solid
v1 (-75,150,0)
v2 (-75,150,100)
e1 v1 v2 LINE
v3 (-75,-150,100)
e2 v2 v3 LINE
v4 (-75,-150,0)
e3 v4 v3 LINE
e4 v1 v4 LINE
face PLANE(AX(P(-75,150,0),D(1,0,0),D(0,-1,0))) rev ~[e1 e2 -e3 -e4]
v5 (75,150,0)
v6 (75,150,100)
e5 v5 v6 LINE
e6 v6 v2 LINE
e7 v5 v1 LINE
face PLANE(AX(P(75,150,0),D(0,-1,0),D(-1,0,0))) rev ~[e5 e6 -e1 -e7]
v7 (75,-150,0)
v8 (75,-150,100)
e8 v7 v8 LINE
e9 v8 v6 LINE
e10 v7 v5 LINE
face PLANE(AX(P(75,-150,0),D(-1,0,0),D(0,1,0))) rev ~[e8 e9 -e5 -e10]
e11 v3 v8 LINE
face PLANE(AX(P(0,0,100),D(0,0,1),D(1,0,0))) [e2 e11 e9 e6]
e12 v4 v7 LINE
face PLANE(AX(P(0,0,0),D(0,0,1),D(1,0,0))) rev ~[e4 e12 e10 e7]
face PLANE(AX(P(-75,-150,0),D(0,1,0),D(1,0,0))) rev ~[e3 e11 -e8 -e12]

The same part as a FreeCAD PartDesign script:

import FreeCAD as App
import Part
import Sketcher

V = App.Vector
Q = App.Units.Quantity


def add_polygon(sketch, points):
    """Adds a closed chain of lines whose ends are joined by coincident constraints."""
    first, n = sketch.GeometryCount, len(points)
    for a, b in zip(points, points[1:] + points[:1]):
        sketch.addGeometry(Part.LineSegment(App.Vector(*a, 0), App.Vector(*b, 0)), False)
    for i in range(n):
        sketch.addConstraint(Sketcher.Constraint("Coincident", first + i, 2, first + (i + 1) % n, 1))

doc = App.newDocument("Part")
params = doc.addObject("Spreadsheet::Sheet", "Params")
for row, (alias, value) in enumerate([
    ("sketch1_width", "150 mm"),
    ("sketch1_height", "300 mm"),
    ("pad1_length", "100 mm"),
], start=1):
    params.set(f"A{row}", alias)
    params.set(f"B{row}", "=" + value)
    params.setAlias(f"B{row}", alias)

body = doc.addObject("PartDesign::Body", "Body")

sketch1 = body.newObject("Sketcher::SketchObject", "Sketch")
sketch1.AttachmentSupport = (doc.getObject("XY_Plane"), [""])
sketch1.MapMode = "FlatFace"
add_polygon(sketch1, [(75, 150), (-75, 150), (-75, -150), (75, -150)])
sketch1.addConstraint(Sketcher.Constraint("Horizontal", 0))
sketch1.addConstraint(Sketcher.Constraint("Vertical", 1))
sketch1.addConstraint(Sketcher.Constraint("Horizontal", 2))
sketch1.addConstraint(Sketcher.Constraint("Vertical", 3))
sketch1.addConstraint(Sketcher.Constraint("Symmetric", 0, 2, 2, 2, -1, 1))
sketch1.addConstraint(Sketcher.Constraint("DistanceX", 0, 2, 0, 1, Q("150 mm")))
sketch1.addConstraint(Sketcher.Constraint("DistanceY", 1, 2, 1, 1, Q("300 mm")))
sketch1.setExpression("Constraints[9]", "Params.sketch1_width")
sketch1.setExpression("Constraints[10]", "Params.sketch1_height")
pad1 = body.newObject("PartDesign::Pad", "Pad")
pad1.Profile = sketch1
pad1.setExpression("Length", "Params.pad1_length")

doc.recompute()
